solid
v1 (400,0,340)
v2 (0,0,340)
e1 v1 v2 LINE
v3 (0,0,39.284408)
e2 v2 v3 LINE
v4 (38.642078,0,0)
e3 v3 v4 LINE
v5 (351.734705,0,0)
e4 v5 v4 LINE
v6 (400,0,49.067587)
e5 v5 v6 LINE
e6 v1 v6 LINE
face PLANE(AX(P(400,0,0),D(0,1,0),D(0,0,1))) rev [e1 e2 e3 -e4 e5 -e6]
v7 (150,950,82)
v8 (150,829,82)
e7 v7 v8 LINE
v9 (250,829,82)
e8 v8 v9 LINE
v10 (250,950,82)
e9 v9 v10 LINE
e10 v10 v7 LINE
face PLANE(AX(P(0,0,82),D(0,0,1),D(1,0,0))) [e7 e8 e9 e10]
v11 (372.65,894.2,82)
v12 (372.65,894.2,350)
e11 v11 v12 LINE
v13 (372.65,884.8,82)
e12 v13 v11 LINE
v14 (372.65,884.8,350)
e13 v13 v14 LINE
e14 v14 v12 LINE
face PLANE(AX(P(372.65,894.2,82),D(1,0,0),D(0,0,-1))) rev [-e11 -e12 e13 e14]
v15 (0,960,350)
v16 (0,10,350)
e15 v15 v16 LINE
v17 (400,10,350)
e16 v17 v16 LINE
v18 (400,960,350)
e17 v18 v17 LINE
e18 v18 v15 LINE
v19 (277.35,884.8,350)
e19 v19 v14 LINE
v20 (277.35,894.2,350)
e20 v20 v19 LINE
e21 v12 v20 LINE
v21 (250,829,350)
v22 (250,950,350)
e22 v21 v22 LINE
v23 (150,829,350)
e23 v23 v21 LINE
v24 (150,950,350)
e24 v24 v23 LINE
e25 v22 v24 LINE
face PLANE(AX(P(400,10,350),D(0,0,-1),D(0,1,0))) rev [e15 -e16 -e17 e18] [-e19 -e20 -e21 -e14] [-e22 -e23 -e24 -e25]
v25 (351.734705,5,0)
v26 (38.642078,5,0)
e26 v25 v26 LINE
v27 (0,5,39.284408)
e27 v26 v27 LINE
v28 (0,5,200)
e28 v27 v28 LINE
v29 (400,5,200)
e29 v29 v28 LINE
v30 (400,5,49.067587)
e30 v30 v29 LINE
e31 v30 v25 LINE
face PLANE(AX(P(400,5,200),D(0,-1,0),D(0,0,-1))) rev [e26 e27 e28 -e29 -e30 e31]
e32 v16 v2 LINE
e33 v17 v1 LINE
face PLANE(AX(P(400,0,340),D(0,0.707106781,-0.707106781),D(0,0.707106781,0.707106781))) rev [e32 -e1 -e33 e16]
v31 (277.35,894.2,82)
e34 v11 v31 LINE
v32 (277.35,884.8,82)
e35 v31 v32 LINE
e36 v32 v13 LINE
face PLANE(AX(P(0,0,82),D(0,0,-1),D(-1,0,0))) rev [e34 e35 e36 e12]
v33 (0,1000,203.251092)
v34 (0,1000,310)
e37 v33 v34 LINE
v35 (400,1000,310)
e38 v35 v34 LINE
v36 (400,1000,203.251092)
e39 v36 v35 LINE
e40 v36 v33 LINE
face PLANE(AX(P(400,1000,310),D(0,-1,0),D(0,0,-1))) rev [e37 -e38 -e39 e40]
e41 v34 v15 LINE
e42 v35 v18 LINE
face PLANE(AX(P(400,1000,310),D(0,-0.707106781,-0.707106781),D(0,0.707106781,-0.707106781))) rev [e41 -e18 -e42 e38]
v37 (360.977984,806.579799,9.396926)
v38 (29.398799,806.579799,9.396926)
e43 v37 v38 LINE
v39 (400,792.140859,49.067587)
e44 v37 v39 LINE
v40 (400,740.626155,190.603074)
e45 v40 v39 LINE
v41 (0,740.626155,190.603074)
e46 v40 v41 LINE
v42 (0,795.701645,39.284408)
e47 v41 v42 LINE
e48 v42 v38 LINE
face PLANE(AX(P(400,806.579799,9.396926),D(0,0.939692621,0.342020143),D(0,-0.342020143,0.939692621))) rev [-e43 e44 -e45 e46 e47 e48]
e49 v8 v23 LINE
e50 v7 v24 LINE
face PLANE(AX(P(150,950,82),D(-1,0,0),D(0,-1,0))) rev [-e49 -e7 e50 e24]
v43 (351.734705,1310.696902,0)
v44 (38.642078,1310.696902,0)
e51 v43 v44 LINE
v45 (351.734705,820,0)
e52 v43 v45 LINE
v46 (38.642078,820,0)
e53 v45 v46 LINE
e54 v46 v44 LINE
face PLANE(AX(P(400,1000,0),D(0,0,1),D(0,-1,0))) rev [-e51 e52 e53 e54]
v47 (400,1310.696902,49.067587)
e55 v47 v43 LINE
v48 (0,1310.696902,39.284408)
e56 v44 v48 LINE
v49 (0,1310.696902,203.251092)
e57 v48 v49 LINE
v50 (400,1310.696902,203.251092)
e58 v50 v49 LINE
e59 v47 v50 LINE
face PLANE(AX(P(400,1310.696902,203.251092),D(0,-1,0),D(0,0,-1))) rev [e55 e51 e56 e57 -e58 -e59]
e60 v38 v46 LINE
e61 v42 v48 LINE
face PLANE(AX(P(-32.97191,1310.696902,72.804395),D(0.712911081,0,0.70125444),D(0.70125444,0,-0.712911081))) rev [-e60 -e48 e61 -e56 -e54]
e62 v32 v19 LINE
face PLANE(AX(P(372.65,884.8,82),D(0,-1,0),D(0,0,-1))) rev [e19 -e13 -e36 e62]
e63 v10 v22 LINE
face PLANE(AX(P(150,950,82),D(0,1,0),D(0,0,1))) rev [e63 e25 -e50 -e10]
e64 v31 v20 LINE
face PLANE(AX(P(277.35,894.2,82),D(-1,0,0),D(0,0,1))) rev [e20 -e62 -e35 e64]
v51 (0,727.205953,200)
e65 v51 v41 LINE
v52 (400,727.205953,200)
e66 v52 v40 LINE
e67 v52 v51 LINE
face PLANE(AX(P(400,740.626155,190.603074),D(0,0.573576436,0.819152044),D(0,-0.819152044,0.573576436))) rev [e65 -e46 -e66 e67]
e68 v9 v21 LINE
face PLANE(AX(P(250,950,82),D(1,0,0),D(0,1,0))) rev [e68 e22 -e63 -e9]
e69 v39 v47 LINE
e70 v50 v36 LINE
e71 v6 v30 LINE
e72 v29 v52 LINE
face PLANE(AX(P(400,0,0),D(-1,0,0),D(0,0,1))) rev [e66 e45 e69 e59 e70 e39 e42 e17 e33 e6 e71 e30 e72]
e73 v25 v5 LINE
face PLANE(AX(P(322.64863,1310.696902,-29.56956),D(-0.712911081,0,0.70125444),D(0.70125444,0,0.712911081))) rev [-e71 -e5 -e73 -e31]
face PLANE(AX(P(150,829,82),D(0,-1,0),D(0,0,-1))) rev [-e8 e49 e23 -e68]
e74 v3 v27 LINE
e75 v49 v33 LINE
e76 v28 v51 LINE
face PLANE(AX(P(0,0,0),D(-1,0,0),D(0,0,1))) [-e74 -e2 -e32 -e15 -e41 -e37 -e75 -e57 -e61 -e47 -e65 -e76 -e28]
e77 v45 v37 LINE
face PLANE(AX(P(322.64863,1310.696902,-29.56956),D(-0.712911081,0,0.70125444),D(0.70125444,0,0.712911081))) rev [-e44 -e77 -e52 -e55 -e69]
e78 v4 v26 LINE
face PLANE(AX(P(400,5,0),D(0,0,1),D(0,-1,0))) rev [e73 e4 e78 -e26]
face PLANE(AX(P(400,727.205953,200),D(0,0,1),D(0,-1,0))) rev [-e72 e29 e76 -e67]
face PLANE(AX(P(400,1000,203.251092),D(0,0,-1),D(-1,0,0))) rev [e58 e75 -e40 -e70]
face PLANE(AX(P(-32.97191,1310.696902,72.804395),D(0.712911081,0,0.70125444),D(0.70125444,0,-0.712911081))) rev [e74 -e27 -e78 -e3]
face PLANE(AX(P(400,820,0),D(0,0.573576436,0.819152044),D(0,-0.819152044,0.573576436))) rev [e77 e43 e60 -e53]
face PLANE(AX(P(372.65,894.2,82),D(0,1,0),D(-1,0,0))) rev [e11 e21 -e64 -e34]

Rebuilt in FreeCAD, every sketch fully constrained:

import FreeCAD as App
import Part
import Sketcher
from FreeCAD import Vector
Q = App.Units.Quantity

doc = App.newDocument("Part")
body = doc.addObject("PartDesign::Body", "Body")

sketch1 = body.newObject("Sketcher::SketchObject", "Sketch")
sketch1.AttachmentSupport = (doc.getObject("YZ_Plane"), [""])
sketch1.MapMode = "FlatFace"
sketch1.addGeometry(Part.LineSegment(Vector(0, 340, 0), Vector(0, 0, 0)), False)
sketch1.addGeometry(Part.LineSegment(Vector(0, 0, 0), Vector(5, 0, 0)), False)
sketch1.addGeometry(Part.LineSegment(Vector(5, 0, 0), Vector(5, 200, 0)), False)
sketch1.addGeometry(Part.LineSegment(Vector(5, 200, 0), Vector(727.205953, 200, 0)), False)
sketch1.addGeometry(Part.LineSegment(Vector(727.205953, 200, 0), Vector(740.626155, 190.603074, 0)), False)
sketch1.addGeometry(Part.LineSegment(Vector(740.626155, 190.603074, 0), Vector(800, 27.474774, 0)), False)
sketch1.addGeometry(Part.LineSegment(Vector(800, 27.474774, 0), Vector(806.579799, 9.396926, 0)), False)
sketch1.addGeometry(Part.LineSegment(Vector(806.579799, 9.396926, 0), Vector(820, 0, 0)), False)
sketch1.addGeometry(Part.LineSegment(Vector(820, 0, 0), Vector(1310.696902, 0, 0)), False)
sketch1.addGeometry(Part.LineSegment(Vector(1310.696902, 0, 0), Vector(1310.696902, 203.251092, 0)), False)
sketch1.addGeometry(Part.LineSegment(Vector(1310.696902, 203.251092, 0), Vector(1000, 203.251092, 0)), False)
sketch1.addGeometry(Part.LineSegment(Vector(1000, 203.251092, 0), Vector(1000, 310, 0)), False)
sketch1.addGeometry(Part.LineSegment(Vector(1000, 310, 0), Vector(960, 350, 0)), False)
sketch1.addGeometry(Part.LineSegment(Vector(960, 350, 0), Vector(10, 350, 0)), False)
sketch1.addGeometry(Part.LineSegment(Vector(10, 350, 0), Vector(0, 340, 0)), False)
sketch1.addConstraint(Sketcher.Constraint("Coincident", 0, 2, 1, 1))
sketch1.addConstraint(Sketcher.Constraint("Coincident", 1, 2, 2, 1))
sketch1.addConstraint(Sketcher.Constraint("Coincident", 2, 2, 3, 1))
sketch1.addConstraint(Sketcher.Constraint("Coincident", 3, 2, 4, 1))
sketch1.addConstraint(Sketcher.Constraint("Coincident", 4, 2, 5, 1))
sketch1.addConstraint(Sketcher.Constraint("Coincident", 5, 2, 6, 1))
sketch1.addConstraint(Sketcher.Constraint("Coincident", 6, 2, 7, 1))
sketch1.addConstraint(Sketcher.Constraint("Coincident", 7, 2, 8, 1))
sketch1.addConstraint(Sketcher.Constraint("Coincident", 8, 2, 9, 1))
sketch1.addConstraint(Sketcher.Constraint("Coincident", 9, 2, 10, 1))
sketch1.addConstraint(Sketcher.Constraint("Coincident", 10, 2, 11, 1))
sketch1.addConstraint(Sketcher.Constraint("Coincident", 11, 2, 12, 1))
sketch1.addConstraint(Sketcher.Constraint("Coincident", 12, 2, 13, 1))
sketch1.addConstraint(Sketcher.Constraint("Coincident", 13, 2, 14, 1))
sketch1.addConstraint(Sketcher.Constraint("Coincident", 14, 2, 0, 1))
sketch1.addConstraint(Sketcher.Constraint("Vertical", 0))
sketch1.addConstraint(Sketcher.Constraint("Horizontal", 1))
sketch1.addConstraint(Sketcher.Constraint("Vertical", 2))
sketch1.addConstraint(Sketcher.Constraint("Horizontal", 3))
sketch1.addConstraint(Sketcher.Constraint("Horizontal", 8))
sketch1.addConstraint(Sketcher.Constraint("Vertical", 9))
sketch1.addConstraint(Sketcher.Constraint("Horizontal", 10))
sketch1.addConstraint(Sketcher.Constraint("Vertical", 11))
sketch1.addConstraint(Sketcher.Constraint("Horizontal", 13))
sketch1.addConstraint(Sketcher.Constraint("Coincident", 0, 2, -1, 1))
sketch1.addConstraint(Sketcher.Constraint("PointOnObject", 7, 2, -1))
sketch1.addConstraint(Sketcher.Constraint("Parallel", 5, 6))
sketch1.addConstraint(Sketcher.Constraint("Parallel", 4, 7))
sketch1.addConstraint(Sketcher.Constraint("Perpendicular", 12, 14))
sketch1.addConstraint(Sketcher.Constraint("Equal", 4, 7))
sketch1.addConstraint(Sketcher.Constraint("DistanceX", 1, 1, 1, 2, Q("5 mm")))
sketch1.addConstraint(Sketcher.Constraint("DistanceX", 13, 2, 13, 1, Q("950 mm")))
sketch1.addConstraint(Sketcher.Constraint("DistanceY", 0, 2, 0, 1, Q("340 mm")))
sketch1.addConstraint(Sketcher.Constraint("DistanceY", 2, 1, 2, 2, Q("200 mm")))
sketch1.addConstraint(Sketcher.Constraint("Angle", 4, Q("-35 deg")))
sketch1.addConstraint(Sketcher.Constraint("Angle", 5, Q("-70 deg")))
sketch1.addConstraint(Sketcher.Constraint("Angle", 12, Q("135 deg")))
sketch1.addConstraint(Sketcher.Constraint("DistanceX", -1, 1, 5, 2, Q("800 mm")))
sketch1.addConstraint(Sketcher.Constraint("DistanceX", -1, 1, 7, 2, Q("820 mm")))
sketch1.addConstraint(Sketcher.Constraint("DistanceX", -1, 1, 10, 2, Q("1000 mm")))
sketch1.addConstraint(Sketcher.Constraint("DistanceY", -1, 1, 11, 2, Q("310 mm")))
sketch1.addConstraint(Sketcher.Constraint("DistanceY", 9, 1, 9, 2, Q("203.251092 mm")))
sketch1.addConstraint(Sketcher.Constraint("DistanceX", -1, 1, 6, 2, Q("806.579799 mm")))
sketch1.addConstraint(Sketcher.Constraint("DistanceX", 8, 1, 8, 2, Q("490.696902 mm")))
pad1 = body.newObject("PartDesign::Pad", "Pad")
pad1.Profile = sketch1
pad1.Length = 400

sketch2 = body.newObject("Sketcher::SketchObject", "Sketch001")
sketch2.AttachmentSupport = (doc.getObject("XY_Plane"), [""])
sketch2.MapMode = "FlatFace"
sketch2.AttachmentOffset = App.Placement(Vector(0, 0, 350), App.Rotation())
sketch2.addGeometry(Part.LineSegment(Vector(150, 950, 0), Vector(150, 829, 0)), False)
sketch2.addGeometry(Part.LineSegment(Vector(150, 829, 0), Vector(250, 829, 0)), False)
sketch2.addGeometry(Part.LineSegment(Vector(250, 829, 0), Vector(250, 950, 0)), False)
sketch2.addGeometry(Part.LineSegment(Vector(250, 950, 0), Vector(150, 950, 0)), False)
sketch2.addGeometry(Part.LineSegment(Vector(277.35, 894.2, 0), Vector(277.35, 884.8, 0)), False)
sketch2.addGeometry(Part.LineSegment(Vector(277.35, 884.8, 0), Vector(372.65, 884.8, 0)), False)
sketch2.addGeometry(Part.LineSegment(Vector(372.65, 884.8, 0), Vector(372.65, 894.2, 0)), False)
sketch2.addGeometry(Part.LineSegment(Vector(372.65, 894.2, 0), Vector(277.35, 894.2, 0)), False)
sketch2.addConstraint(Sketcher.Constraint("Coincident", 0, 2, 1, 1))
sketch2.addConstraint(Sketcher.Constraint("Coincident", 1, 2, 2, 1))
sketch2.addConstraint(Sketcher.Constraint("Coincident", 2, 2, 3, 1))
sketch2.addConstraint(Sketcher.Constraint("Coincident", 3, 2, 0, 1))
sketch2.addConstraint(Sketcher.Constraint("Coincident", 4, 2, 5, 1))
sketch2.addConstraint(Sketcher.Constraint("Coincident", 5, 2, 6, 1))
sketch2.addConstraint(Sketcher.Constraint("Coincident", 6, 2, 7, 1))
sketch2.addConstraint(Sketcher.Constraint("Coincident", 7, 2, 4, 1))
sketch2.addConstraint(Sketcher.Constraint("Vertical", 0))
sketch2.addConstraint(Sketcher.Constraint("Horizontal", 1))
sketch2.addConstraint(Sketcher.Constraint("Vertical", 2))
sketch2.addConstraint(Sketcher.Constraint("Horizontal", 3))
sketch2.addConstraint(Sketcher.Constraint("Vertical", 4))
sketch2.addConstraint(Sketcher.Constraint("Horizontal", 5))
sketch2.addConstraint(Sketcher.Constraint("Vertical", 6))
sketch2.addConstraint(Sketcher.Constraint("Horizontal", 7))
sketch2.addConstraint(Sketcher.Constraint("DistanceX", 1, 1, 1, 2, Q("100 mm")))
sketch2.addConstraint(Sketcher.Constraint("DistanceY", 0, 2, 0, 1, Q("121 mm")))
sketch2.addConstraint(Sketcher.Constraint("DistanceX", 5, 1, 5, 2, Q("95.3 mm")))
sketch2.addConstraint(Sketcher.Constraint("DistanceY", 4, 2, 4, 1, Q("9.4 mm")))
sketch2.addConstraint(Sketcher.Constraint("DistanceX", -1, 1, 0, 2, Q("150 mm")))
sketch2.addConstraint(Sketcher.Constraint("DistanceY", -1, 1, 0, 2, Q("829 mm")))
sketch2.addConstraint(Sketcher.Constraint("DistanceY", -1, 1, 4, 2, Q("884.8 mm")))
sketch2.addConstraint(Sketcher.Constraint("DistanceX", -1, 1, 4, 2, Q("277.35 mm")))
pocket1 = body.newObject("PartDesign::Pocket", "Pocket")
pocket1.Profile = sketch2
pocket1.Length = 268

sketch3 = body.newObject("Sketcher::SketchObject", "Sketch002")
sketch3.AttachmentSupport = (doc.getObject("XZ_Plane"), [""])
sketch3.MapMode = "FlatFace"
sketch3.addGeometry(Part.LineSegment(Vector(67.728153, -29.56956, 0), Vector(-32.97191, 72.804395, 0)), False)
sketch3.addGeometry(Part.LineSegment(Vector(-32.97191, 72.804395, 0), Vector(-32.97191, -100.069532, 0)), False)
sketch3.addGeometry(Part.LineSegment(Vector(-32.97191, -100.069532, 0), Vector(423.348693, -100.069532, 0)), False)
sketch3.addGeometry(Part.LineSegment(Vector(423.348693, -100.069532, 0), Vector(423.348693, 72.804395, 0)), False)
sketch3.addGeometry(Part.LineSegment(Vector(423.348693, 72.804395, 0), Vector(322.64863, -29.56956, 0)), False)
sketch3.addGeometry(Part.LineSegment(Vector(322.64863, -29.56956, 0), Vector(67.728153, -29.56956, 0)), False)
sketch3.addConstraint(Sketcher.Constraint("Coincident", 0, 2, 1, 1))
sketch3.addConstraint(Sketcher.Constraint("Coincident", 1, 2, 2, 1))
sketch3.addConstraint(Sketcher.Constraint("Coincident", 2, 2, 3, 1))
sketch3.addConstraint(Sketcher.Constraint("Coincident", 3, 2, 4, 1))
sketch3.addConstraint(Sketcher.Constraint("Coincident", 4, 2, 5, 1))
sketch3.addConstraint(Sketcher.Constraint("Coincident", 5, 2, 0, 1))
sketch3.addConstraint(Sketcher.Constraint("Vertical", 1))
sketch3.addConstraint(Sketcher.Constraint("Horizontal", 2))
sketch3.addConstraint(Sketcher.Constraint("Vertical", 3))
sketch3.addConstraint(Sketcher.Constraint("Horizontal", 5))
sketch3.addConstraint(Sketcher.Constraint("Horizontal", 0, 2, 3, 2))
sketch3.addConstraint(Sketcher.Constraint("Equal", 0, 4))
sketch3.addConstraint(Sketcher.Constraint("DistanceX", 2, 1, 2, 2, Q("456.320603 mm")))
sketch3.addConstraint(Sketcher.Constraint("DistanceX", 5, 2, 5, 1, Q("254.920476 mm")))
sketch3.addConstraint(Sketcher.Constraint("DistanceY", 1, 2, 1, 1, Q("172.873927 mm")))
sketch3.addConstraint(Sketcher.Constraint("DistanceX", 0, 2, -1, 1, Q("32.97191 mm")))
sketch3.addConstraint(Sketcher.Constraint("DistanceY", 1, 2, -1, 1, Q("100.069532 mm")))
sketch3.addConstraint(Sketcher.Constraint("DistanceY", 4, 2, -1, 1, Q("29.56956 mm")))
pocket2 = body.newObject("PartDesign::Pocket", "Pocket001")
pocket2.Profile = sketch3
pocket2.Type = "ThroughAll"
pocket2.Midplane = True

doc.recompute()
